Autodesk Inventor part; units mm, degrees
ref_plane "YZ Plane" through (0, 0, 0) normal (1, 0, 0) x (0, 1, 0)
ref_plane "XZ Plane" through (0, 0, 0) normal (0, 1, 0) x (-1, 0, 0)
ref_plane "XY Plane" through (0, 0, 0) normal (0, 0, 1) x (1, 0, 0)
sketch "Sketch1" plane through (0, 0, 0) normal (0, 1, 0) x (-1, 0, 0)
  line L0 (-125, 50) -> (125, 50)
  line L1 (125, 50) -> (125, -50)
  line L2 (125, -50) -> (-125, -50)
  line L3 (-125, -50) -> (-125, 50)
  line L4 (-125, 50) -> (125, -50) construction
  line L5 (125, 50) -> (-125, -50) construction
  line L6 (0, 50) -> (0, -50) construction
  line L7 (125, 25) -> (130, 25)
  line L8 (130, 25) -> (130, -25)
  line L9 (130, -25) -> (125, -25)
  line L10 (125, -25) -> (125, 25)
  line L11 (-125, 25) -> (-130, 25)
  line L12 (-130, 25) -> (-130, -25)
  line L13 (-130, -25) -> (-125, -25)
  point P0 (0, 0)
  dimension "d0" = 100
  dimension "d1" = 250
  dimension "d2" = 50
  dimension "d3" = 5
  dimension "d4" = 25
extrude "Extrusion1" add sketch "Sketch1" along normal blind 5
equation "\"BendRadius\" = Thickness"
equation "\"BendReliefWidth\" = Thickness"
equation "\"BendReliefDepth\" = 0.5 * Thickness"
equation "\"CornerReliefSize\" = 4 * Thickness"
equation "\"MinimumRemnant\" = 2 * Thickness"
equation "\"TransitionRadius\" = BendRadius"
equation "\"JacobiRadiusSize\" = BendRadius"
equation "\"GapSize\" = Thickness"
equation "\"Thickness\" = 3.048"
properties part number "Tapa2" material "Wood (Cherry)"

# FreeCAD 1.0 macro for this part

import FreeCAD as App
import Part
import Sketcher


def add_polygon(sketch, points):
    """Adds a closed chain of lines whose ends are joined by coincident constraints."""
    first, n = sketch.GeometryCount, len(points)
    for a, b in zip(points, points[1:] + points[:1]):
        sketch.addGeometry(Part.LineSegment(App.Vector(*a, 0), App.Vector(*b, 0)), False)
    for i in range(n):
        sketch.addConstraint(Sketcher.Constraint("Coincident", first + i, 2, first + (i + 1) % n, 1))

doc = App.newDocument("Part")
body = doc.addObject("PartDesign::Body", "Body")

sketch1 = body.newObject("Sketcher::SketchObject", "Sketch")
sketch1.AttachmentSupport = (doc.getObject("XZ_Plane"), [""])
sketch1.MapMode = "FlatFace"
add_polygon(sketch1, [(-125, 50), (125, 50), (125, 25), (130, 25), (130, -25), (125, -25), (125, -50), (-125, -50), (-125, -25), (-130, -25), (-130, 25), (-125, 25)])
sketch1.addConstraint(Sketcher.Constraint("Horizontal", 0))
sketch1.addConstraint(Sketcher.Constraint("Vertical", 1))
sketch1.addConstraint(Sketcher.Constraint("Horizontal", 2))
sketch1.addConstraint(Sketcher.Constraint("Vertical", 3))
sketch1.addConstraint(Sketcher.Constraint("Horizontal", 4))
sketch1.addConstraint(Sketcher.Constraint("Vertical", 5))
sketch1.addConstraint(Sketcher.Constraint("Horizontal", 6))
sketch1.addConstraint(Sketcher.Constraint("Vertical", 7))
sketch1.addConstraint(Sketcher.Constraint("Horizontal", 8))
sketch1.addConstraint(Sketcher.Constraint("Vertical", 9))
sketch1.addConstraint(Sketcher.Constraint("Horizontal", 10))
sketch1.addConstraint(Sketcher.Constraint("Vertical", 11))
sketch1.addConstraint(Sketcher.Constraint("Symmetric", 0, 2, 6, 2, -1, 1))
sketch1.addConstraint(Sketcher.Constraint("Symmetric", 2, 2, 8, 2, -1, 1))
sketch1.addConstraint(Sketcher.Constraint("Symmetric", 4, 2, 10, 2, -1, 1))
sketch1.addConstraint(Sketcher.Constraint("Symmetric", 4, 2, 7, 2, -2))
sketch1.addConstraint(Sketcher.Constraint("DistanceX", 0, 1, 0, 2, 250.0))
sketch1.addConstraint(Sketcher.Constraint("DistanceX", 2, 1, 2, 2, 5.0))
sketch1.addConstraint(Sketcher.Constraint("DistanceY", 1, 2, 1, 1, 25.0))
sketch1.addConstraint(Sketcher.Constraint("DistanceY", 3, 2, 3, 1, 50.0))
pad1 = body.newObject("PartDesign::Pad", "Pad")
pad1.Profile = sketch1
pad1.Length = 5
pad1.Reversed = True

doc.recompute()
